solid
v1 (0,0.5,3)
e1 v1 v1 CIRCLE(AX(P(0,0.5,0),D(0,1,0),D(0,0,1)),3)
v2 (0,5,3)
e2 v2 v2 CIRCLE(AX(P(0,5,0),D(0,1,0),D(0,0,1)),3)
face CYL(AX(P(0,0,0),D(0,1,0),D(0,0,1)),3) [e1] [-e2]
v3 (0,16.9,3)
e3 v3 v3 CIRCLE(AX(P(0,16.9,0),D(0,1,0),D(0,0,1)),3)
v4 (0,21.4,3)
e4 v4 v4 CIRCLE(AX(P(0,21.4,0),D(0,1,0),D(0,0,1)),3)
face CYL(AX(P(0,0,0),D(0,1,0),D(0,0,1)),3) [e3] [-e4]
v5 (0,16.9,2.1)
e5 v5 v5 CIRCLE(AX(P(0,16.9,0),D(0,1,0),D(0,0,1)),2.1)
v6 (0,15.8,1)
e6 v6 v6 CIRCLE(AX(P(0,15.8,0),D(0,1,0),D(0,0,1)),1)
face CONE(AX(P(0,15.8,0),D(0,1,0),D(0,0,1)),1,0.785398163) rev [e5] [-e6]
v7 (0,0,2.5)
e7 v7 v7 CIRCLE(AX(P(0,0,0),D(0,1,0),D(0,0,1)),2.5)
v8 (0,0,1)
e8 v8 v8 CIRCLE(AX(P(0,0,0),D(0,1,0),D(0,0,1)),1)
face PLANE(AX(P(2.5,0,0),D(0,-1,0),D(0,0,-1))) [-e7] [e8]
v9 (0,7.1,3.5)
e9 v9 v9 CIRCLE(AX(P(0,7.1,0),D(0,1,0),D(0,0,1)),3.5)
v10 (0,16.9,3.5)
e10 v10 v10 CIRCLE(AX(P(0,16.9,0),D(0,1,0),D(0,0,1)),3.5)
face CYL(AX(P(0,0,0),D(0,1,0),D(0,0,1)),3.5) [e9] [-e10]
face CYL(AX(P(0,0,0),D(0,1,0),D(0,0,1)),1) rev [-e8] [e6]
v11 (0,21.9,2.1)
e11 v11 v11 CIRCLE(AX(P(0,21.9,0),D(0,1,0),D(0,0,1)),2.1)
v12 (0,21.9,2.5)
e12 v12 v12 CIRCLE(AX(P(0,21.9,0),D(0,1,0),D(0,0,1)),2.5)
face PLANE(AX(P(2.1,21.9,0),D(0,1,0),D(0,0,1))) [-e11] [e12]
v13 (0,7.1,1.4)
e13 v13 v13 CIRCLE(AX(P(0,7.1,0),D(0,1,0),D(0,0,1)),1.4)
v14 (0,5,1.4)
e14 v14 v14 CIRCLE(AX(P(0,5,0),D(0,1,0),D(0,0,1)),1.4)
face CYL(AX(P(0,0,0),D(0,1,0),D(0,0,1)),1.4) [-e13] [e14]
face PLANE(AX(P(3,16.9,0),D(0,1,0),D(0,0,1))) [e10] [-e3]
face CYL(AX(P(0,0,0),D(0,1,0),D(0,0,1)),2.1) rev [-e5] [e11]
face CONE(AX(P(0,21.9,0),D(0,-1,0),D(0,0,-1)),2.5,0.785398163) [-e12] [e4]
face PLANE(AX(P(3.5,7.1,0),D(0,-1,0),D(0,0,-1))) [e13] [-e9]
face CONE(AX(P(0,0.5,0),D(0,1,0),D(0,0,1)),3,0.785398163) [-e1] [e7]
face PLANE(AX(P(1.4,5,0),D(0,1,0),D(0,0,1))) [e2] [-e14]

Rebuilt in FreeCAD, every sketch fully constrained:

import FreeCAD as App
import Part
import Sketcher
from FreeCAD import Vector
Q = App.Units.Quantity

doc = App.newDocument("Part")
body = doc.addObject("PartDesign::Body", "Body")

# Sketch on XY plane
sketch1 = body.newObject("Sketcher::SketchObject", "Sketch")
sketch1.AttachmentSupport = (doc.getObject("XY_Plane"), [""])
sketch1.MapMode = "FlatFace"
sketch1.addGeometry([
    Part.LineSegment(Vector(2.5, 0, 0), Vector(1, 0, 0)),  # 0
    Part.LineSegment(Vector(1, 0, 0), Vector(1, 15.8, 0)),  # 1
    Part.LineSegment(Vector(1, 15.8, 0), Vector(2.1, 16.9, 0)),  # 2
    Part.LineSegment(Vector(2.1, 16.9, 0), Vector(2.1, 21.9, 0)),  # 3
    Part.LineSegment(Vector(2.1, 21.9, 0), Vector(2.5, 21.9, 0)),  # 4
    Part.LineSegment(Vector(2.5, 21.9, 0), Vector(3, 21.4, 0)),  # 5
    Part.LineSegment(Vector(3, 21.4, 0), Vector(3, 16.9, 0)),  # 6
    Part.LineSegment(Vector(3, 16.9, 0), Vector(3.5, 16.9, 0)),  # 7
    Part.LineSegment(Vector(3.5, 16.9, 0), Vector(3.5, 7.1, 0)),  # 8
    Part.LineSegment(Vector(3.5, 7.1, 0), Vector(1.4, 7.1, 0)),  # 9
    Part.LineSegment(Vector(1.4, 7.1, 0), Vector(1.4, 5, 0)),  # 10
    Part.LineSegment(Vector(1.4, 5, 0), Vector(3, 5, 0)),  # 11
    Part.LineSegment(Vector(3, 5, 0), Vector(3, 0.5, 0)),  # 12
    Part.LineSegment(Vector(3, 0.5, 0), Vector(2.5, 0, 0)),  # 13
], False)
sketch1.addConstraint([
    Sketcher.Constraint("Coincident", 0, 2, 1, 1),
    Sketcher.Constraint("Coincident", 1, 2, 2, 1),
    Sketcher.Constraint("Coincident", 2, 2, 3, 1),
    Sketcher.Constraint("Coincident", 3, 2, 4, 1),
    Sketcher.Constraint("Coincident", 4, 2, 5, 1),
    Sketcher.Constraint("Coincident", 5, 2, 6, 1),
    Sketcher.Constraint("Coincident", 6, 2, 7, 1),
    Sketcher.Constraint("Coincident", 7, 2, 8, 1),
    Sketcher.Constraint("Coincident", 8, 2, 9, 1),
    Sketcher.Constraint("Coincident", 9, 2, 10, 1),
    Sketcher.Constraint("Coincident", 10, 2, 11, 1),
    Sketcher.Constraint("Coincident", 11, 2, 12, 1),
    Sketcher.Constraint("Coincident", 12, 2, 13, 1),
    Sketcher.Constraint("Coincident", 13, 2, 0, 1),
    Sketcher.Constraint("Horizontal", 0),
    Sketcher.Constraint("Vertical", 1),
    Sketcher.Constraint("Vertical", 3),
    Sketcher.Constraint("Horizontal", 4),
    Sketcher.Constraint("Vertical", 6),
    Sketcher.Constraint("Horizontal", 7),
    Sketcher.Constraint("Vertical", 8),
    Sketcher.Constraint("Horizontal", 9),
    Sketcher.Constraint("Vertical", 10),
    Sketcher.Constraint("Horizontal", 11),
    Sketcher.Constraint("Vertical", 12),
    Sketcher.Constraint("PointOnObject", 0, 2, -1),
    Sketcher.Constraint("Perpendicular", 2, 5),
    Sketcher.Constraint("Perpendicular", 5, 13),
    Sketcher.Constraint("Horizontal", 2, 2, 6, 2),
    Sketcher.Constraint("Vertical", 6, 2, 11, 2),
    Sketcher.Constraint("Vertical", 4, 2, 13, 2),
    Sketcher.Constraint("Equal", 9, 10),
    Sketcher.Constraint("Equal", 6, 12),
    Sketcher.Constraint("Equal", 5, 13),
    Sketcher.Constraint("DistanceY", 3, 1, 3, 2, Q("5 mm")),
    Sketcher.Constraint("DistanceX", 0, 2, 0, 1, Q("1.5 mm")),
    Sketcher.Constraint("DistanceX", 4, 1, 4, 2, Q("0.4 mm")),
    Sketcher.Constraint("DistanceX", 7, 1, 7, 2, Q("0.5 mm")),
    Sketcher.Constraint("DistanceX", 9, 2, 9, 1, Q("2.1 mm")),
    Sketcher.Constraint("DistanceY", 1, 1, 1, 2, Q("15.8 mm")),
    Sketcher.Constraint("DistanceY", 6, 2, 6, 1, Q("4.5 mm")),
    Sketcher.Constraint("DistanceX", -1, 1, 0, 2, Q("1 mm")),
])
revolution = body.newObject("PartDesign::Revolution", "Revolution")
revolution.Profile = sketch1
revolution.ReferenceAxis = (sketch1, ["V_Axis"])
revolution.Angle = 360

doc.recompute()
